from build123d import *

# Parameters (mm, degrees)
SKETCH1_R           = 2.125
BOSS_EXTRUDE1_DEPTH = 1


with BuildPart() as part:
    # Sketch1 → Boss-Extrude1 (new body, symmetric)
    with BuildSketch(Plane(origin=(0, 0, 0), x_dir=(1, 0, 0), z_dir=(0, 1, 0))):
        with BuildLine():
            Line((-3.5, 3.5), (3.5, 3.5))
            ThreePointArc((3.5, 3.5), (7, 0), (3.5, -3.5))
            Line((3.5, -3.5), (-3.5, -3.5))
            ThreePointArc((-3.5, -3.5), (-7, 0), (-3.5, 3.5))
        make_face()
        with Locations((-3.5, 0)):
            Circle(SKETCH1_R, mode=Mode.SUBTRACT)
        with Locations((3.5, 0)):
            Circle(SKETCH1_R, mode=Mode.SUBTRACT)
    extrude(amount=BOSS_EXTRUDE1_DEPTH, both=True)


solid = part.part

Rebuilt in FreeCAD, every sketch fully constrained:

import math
import FreeCAD as App
import Part
import Sketcher

V = App.Vector
Q = App.Units.Quantity

doc = App.newDocument("Part")
body = doc.addObject("PartDesign::Body", "Body")

# Sketch on XZ plane
sketch1 = doc.addObject("Sketcher::SketchObject", "Sketch")
body.addObject(sketch1)
sketch1.AttachmentSupport = (doc.XZ_Plane, [""])
sketch1.MapMode = "FlatFace"
sketch1.addGeometry([
    Part.LineSegment(V(3.5, -3.5, 0), V(-3.5, -3.5, 0)),  # 0
    Part.ArcOfCircle(Part.Circle(V(-3.5, 0, 0), V(0, 0, 1), 3.5), math.radians(90), math.radians(270)),  # 1
    Part.LineSegment(V(-3.5, 3.5, 0), V(3.5, 3.5, 0)),  # 2
    Part.ArcOfCircle(Part.Circle(V(3.5, 0, 0), V(0, 0, 1), 3.5), math.radians(-90), math.radians(90)),  # 3
    Part.Circle(V(3.5, 0, 0), V(0, 0, 1), 2.1),  # 4
    Part.Circle(V(-3.5, 0, 0), V(0, 0, 1), 2.1),  # 5
], False)
sketch1.addConstraint([
    Sketcher.Constraint("Tangent", 0, 2, 1, 2),
    Sketcher.Constraint("Tangent", 1, 1, 2, 1),
    Sketcher.Constraint("Tangent", 2, 2, 3, 2),
    Sketcher.Constraint("Tangent", 3, 1, 0, 1),
    Sketcher.Constraint("Horizontal", 0),
    Sketcher.Constraint("Horizontal", 2),
    Sketcher.Constraint("Coincident", 4, 3, 3, 3),
    Sketcher.Constraint("Coincident", 5, 3, 1, 3),
    Sketcher.Constraint("Equal", 4, 5),
    Sketcher.Constraint("Symmetric", 1, 3, 3, 3, -1, 1),
    Sketcher.Constraint("Radius", 1, Q("3.5 mm")),
    Sketcher.Constraint("Diameter", 4, Q("4.25 mm")),
    Sketcher.Constraint("DistanceX", 0, 2, 0, 1, Q("7 mm")),
])
pad1 = doc.addObject("PartDesign::Pad", "Pad")
body.addObject(pad1)
pad1.Profile = sketch1
pad1.Length = 2
pad1.Midplane = True

doc.recompute()
